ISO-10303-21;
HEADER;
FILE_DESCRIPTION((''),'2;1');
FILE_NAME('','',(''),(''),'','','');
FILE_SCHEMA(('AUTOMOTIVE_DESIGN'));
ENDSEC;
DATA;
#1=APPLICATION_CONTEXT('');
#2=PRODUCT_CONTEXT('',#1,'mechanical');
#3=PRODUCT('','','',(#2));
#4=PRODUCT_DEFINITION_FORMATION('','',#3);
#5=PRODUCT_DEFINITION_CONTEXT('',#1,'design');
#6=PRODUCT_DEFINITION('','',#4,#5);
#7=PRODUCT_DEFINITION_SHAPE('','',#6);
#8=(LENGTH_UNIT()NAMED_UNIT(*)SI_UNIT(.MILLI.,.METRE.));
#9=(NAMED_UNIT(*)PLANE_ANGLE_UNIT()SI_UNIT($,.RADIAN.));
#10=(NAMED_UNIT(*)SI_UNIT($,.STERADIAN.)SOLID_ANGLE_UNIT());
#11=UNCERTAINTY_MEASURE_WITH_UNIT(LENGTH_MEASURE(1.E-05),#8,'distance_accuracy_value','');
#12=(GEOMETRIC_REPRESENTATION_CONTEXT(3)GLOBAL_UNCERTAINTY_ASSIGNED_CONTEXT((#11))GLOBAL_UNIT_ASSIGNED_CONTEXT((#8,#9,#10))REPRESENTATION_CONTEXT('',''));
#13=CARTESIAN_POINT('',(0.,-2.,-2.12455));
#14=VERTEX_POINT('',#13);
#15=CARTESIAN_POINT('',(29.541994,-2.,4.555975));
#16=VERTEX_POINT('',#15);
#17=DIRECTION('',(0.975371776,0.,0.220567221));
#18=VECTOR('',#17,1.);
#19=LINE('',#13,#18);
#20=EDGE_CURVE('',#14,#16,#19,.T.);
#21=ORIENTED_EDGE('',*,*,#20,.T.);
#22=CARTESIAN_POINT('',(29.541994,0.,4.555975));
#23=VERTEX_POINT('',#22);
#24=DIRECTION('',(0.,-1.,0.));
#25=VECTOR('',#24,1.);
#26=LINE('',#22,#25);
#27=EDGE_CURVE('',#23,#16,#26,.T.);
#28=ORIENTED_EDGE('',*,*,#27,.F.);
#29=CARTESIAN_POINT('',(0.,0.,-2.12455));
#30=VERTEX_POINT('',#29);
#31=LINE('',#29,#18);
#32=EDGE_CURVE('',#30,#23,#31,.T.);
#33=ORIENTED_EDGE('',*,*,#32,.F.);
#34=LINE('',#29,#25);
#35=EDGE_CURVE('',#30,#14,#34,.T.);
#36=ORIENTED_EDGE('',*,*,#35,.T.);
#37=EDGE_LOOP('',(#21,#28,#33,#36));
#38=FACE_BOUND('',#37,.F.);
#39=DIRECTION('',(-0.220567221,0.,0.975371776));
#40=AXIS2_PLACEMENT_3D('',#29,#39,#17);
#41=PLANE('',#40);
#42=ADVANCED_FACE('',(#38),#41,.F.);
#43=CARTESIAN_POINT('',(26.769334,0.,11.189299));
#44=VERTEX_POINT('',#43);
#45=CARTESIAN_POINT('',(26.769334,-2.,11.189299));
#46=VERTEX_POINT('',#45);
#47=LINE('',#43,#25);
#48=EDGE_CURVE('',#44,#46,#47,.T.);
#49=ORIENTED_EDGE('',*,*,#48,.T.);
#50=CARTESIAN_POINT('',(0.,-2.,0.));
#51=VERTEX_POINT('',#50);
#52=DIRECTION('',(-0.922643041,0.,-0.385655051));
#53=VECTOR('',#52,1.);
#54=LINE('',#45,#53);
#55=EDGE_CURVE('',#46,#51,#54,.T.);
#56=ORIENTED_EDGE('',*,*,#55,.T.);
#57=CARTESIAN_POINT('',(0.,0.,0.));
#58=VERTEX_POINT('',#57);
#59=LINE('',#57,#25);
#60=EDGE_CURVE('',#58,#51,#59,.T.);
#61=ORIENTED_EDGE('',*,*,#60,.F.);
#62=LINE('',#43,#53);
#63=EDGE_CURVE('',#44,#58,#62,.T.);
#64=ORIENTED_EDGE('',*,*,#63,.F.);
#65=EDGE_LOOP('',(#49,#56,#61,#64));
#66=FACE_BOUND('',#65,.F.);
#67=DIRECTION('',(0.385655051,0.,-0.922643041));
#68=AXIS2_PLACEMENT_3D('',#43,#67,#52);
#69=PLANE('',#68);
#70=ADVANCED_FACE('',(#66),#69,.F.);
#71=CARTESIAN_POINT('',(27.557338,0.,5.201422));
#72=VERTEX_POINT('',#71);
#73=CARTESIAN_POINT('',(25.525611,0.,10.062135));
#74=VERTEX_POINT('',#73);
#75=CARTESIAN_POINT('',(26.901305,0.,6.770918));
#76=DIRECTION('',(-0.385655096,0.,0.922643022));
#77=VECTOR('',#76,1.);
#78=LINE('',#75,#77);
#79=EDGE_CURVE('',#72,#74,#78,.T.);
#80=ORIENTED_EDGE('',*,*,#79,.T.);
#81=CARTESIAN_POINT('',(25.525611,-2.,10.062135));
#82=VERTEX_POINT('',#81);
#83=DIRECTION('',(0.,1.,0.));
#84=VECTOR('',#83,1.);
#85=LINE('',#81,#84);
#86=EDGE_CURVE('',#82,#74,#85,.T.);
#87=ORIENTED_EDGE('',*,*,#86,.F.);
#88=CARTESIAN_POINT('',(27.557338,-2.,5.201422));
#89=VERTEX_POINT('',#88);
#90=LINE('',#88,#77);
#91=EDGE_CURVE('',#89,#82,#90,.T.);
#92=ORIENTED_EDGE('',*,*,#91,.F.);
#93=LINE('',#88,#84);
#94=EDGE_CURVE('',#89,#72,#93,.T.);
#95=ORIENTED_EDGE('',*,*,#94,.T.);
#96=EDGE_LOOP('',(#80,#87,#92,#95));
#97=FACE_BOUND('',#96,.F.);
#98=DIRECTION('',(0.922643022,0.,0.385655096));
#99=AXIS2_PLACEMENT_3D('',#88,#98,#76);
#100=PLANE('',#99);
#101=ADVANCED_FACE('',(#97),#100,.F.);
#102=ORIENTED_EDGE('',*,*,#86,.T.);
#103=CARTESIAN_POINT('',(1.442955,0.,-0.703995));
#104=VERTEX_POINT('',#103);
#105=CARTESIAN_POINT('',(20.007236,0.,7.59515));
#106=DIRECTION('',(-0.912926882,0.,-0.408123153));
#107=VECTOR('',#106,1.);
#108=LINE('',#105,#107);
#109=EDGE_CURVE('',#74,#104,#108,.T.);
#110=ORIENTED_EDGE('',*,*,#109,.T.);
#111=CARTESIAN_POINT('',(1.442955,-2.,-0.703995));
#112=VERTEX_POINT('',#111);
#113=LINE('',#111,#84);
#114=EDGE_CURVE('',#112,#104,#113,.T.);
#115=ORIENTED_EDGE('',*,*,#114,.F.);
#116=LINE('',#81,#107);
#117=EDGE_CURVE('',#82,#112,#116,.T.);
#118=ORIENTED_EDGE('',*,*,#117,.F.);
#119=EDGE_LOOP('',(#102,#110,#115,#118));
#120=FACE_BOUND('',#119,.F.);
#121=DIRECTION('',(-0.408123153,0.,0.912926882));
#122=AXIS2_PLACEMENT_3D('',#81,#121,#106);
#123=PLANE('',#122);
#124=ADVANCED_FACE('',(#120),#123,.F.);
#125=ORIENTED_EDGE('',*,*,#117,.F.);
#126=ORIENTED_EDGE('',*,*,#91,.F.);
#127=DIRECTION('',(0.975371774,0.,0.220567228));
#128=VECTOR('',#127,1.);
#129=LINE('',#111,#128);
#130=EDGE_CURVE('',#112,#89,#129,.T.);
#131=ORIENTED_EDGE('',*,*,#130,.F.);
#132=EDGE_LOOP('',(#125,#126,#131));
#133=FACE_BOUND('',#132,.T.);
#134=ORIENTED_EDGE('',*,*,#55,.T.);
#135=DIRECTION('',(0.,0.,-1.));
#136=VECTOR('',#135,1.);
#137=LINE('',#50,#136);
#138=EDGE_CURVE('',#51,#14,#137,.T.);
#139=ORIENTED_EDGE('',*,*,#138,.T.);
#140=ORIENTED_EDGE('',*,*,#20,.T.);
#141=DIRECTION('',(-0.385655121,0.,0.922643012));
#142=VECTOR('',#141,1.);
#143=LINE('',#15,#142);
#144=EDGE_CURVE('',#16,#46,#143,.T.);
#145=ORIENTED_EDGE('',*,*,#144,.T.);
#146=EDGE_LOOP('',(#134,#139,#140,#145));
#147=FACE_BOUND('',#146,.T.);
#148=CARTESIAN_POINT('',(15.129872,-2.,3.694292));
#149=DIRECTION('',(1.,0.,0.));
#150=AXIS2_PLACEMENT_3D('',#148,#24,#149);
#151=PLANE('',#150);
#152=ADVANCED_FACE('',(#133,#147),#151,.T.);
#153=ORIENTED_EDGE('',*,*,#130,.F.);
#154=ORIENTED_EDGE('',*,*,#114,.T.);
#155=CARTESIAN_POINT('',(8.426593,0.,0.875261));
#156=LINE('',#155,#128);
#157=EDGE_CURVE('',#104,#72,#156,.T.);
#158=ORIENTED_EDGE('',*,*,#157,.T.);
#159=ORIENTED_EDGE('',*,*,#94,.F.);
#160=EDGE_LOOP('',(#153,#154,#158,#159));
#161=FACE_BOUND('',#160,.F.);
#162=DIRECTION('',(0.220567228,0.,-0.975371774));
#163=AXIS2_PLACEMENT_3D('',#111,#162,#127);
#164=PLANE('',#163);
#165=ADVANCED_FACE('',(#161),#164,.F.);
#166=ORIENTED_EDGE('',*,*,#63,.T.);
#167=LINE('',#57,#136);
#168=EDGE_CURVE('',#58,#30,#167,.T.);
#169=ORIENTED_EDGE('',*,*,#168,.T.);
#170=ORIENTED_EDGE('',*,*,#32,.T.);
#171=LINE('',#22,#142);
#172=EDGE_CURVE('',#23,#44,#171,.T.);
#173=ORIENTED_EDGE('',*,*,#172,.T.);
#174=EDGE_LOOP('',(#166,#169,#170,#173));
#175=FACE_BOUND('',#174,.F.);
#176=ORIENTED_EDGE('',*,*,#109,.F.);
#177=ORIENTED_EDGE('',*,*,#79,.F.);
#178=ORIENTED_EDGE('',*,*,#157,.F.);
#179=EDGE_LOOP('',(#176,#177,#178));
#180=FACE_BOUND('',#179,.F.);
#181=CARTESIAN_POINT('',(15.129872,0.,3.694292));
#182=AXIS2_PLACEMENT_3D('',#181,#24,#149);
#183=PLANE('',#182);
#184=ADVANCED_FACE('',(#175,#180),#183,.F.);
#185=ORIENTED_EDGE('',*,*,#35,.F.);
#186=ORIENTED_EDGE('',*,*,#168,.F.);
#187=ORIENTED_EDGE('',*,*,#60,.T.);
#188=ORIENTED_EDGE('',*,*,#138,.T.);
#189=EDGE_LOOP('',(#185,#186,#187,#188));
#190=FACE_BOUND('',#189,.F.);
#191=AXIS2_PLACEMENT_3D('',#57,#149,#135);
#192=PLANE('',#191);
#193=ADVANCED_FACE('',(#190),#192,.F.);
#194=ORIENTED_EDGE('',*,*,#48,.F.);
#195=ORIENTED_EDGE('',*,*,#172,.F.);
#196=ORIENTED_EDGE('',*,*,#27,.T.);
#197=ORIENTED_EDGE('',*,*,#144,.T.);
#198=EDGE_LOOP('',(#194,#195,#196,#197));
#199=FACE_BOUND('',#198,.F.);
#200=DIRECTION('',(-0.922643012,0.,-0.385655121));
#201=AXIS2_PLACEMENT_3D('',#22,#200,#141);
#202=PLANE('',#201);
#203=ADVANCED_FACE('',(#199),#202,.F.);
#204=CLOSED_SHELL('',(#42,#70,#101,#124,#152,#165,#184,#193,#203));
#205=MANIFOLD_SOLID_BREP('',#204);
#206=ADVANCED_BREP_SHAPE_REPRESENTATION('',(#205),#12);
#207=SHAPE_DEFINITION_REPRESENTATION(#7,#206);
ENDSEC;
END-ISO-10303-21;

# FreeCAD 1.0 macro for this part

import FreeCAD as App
import Part
import Sketcher
from FreeCAD import Vector
Q = App.Units.Quantity


def add_polygon(sketch, points):
    """Adds a closed chain of lines whose ends are joined by coincident constraints."""
    first, n = sketch.GeometryCount, len(points)
    for a, b in zip(points, points[1:] + points[:1]):
        sketch.addGeometry(Part.LineSegment(App.Vector(*a, 0), App.Vector(*b, 0)), False)
    for i in range(n):
        sketch.addConstraint(Sketcher.Constraint("Coincident", first + i, 2, first + (i + 1) % n, 1))

doc = App.newDocument("Part")
body = doc.addObject("PartDesign::Body", "Body")

# Sketch on XZ plane
sketch1 = body.newObject("Sketcher::SketchObject", "Sketch")
sketch1.AttachmentSupport = (doc.getObject("XZ_Plane"), [""])
sketch1.MapMode = "FlatFace"
add_polygon(sketch1, [(26.8, 11.2), (0, 0), (0, -2.1), (29.5, 4.6)])  # lines 0-3
sketch1.addConstraint(Sketcher.Constraint("Vertical", 1))
sketch1.addConstraint(Sketcher.Constraint("Coincident", 0, 2, -1, 1))
sketch1.addConstraint(Sketcher.Constraint("Perpendicular", 0, 3))
sketch1.addConstraint(Sketcher.Constraint("DistanceY", 1, 2, 1, 1, Q("2.12455 mm")))
sketch1.addConstraint(Sketcher.Constraint("DistanceY", -1, 1, 3, 2, Q("11.189299 mm")))
sketch1.addConstraint(Sketcher.Constraint("Distance", 0, Q("29.013749 mm")))
sketch1.addConstraint(Sketcher.Constraint("Distance", 2, Q("30.287932 mm")))
pad1 = body.newObject("PartDesign::Pad", "Pad")
pad1.Profile = sketch1
pad1.Length = 2

# Sketch on XZ plane
sketch2 = body.newObject("Sketcher::SketchObject", "Sketch001")
sketch2.AttachmentSupport = (doc.getObject("XZ_Plane"), [""])
sketch2.MapMode = "FlatFace"
sketch2.AttachmentOffset = App.Placement(Vector(0, 0, 2), App.Rotation())
add_polygon(sketch2, [(28, 5), (26, 10), (1, -1)])  # lines 0-2
sketch2.addConstraint(Sketcher.Constraint("Distance", 0, Q("5.268249 mm")))
sketch2.addConstraint(Sketcher.Constraint("Distance", 1, Q("26.379611 mm")))
sketch2.addConstraint(Sketcher.Constraint("DistanceX", -1, 1, 0, 2, Q("25.525611 mm")))
sketch2.addConstraint(Sketcher.Constraint("DistanceX", -1, 1, 2, 2, Q("27.557338 mm")))
sketch2.addConstraint(Sketcher.Constraint("DistanceY", 1, 2, 0, 2, Q("10.76613 mm")))
sketch2.addConstraint(Sketcher.Constraint("DistanceY", -1, 1, 0, 2, Q("10.062135 mm")))
pocket1 = body.newObject("PartDesign::Pocket", "Pocket")
pocket1.Profile = sketch2
pocket1.Type = "ThroughAll"

doc.recompute()
